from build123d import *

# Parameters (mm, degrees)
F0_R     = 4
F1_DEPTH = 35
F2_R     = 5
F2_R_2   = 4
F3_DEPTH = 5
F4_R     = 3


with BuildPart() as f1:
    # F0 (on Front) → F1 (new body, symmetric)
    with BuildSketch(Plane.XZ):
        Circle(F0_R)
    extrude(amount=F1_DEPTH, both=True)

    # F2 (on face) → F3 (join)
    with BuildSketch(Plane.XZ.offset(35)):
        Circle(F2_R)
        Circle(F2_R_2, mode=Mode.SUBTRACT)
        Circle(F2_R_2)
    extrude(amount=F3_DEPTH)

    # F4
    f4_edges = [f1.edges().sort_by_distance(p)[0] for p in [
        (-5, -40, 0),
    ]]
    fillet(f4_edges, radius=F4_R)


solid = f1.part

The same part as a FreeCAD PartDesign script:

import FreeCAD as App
import Part
import Sketcher
from FreeCAD import Vector
Q = App.Units.Quantity


def edges_at(feature, points):
    """Names of the edges that pass closest to the given points."""
    edges = feature.Shape.Edges
    near = lambda p: min(range(len(edges)), key=lambda i: edges[i].distToShape(Part.Vertex(*p))[0])
    return sorted({f"Edge{near(p) + 1}" for p in points})

doc = App.newDocument("Part")
body = doc.addObject("PartDesign::Body", "Body")

# Sketch on XZ plane
sketch1 = body.newObject("Sketcher::SketchObject", "Sketch")
sketch1.AttachmentSupport = (doc.getObject("XZ_Plane"), [""])
sketch1.MapMode = "FlatFace"
sketch1.addGeometry(Part.Circle(Vector(0, 0, 0), Vector(0, 0, 1), 4), False)
sketch1.addConstraint(Sketcher.Constraint("Coincident", 0, 3, -1, 1))
sketch1.addConstraint(Sketcher.Constraint("Diameter", 0, Q("8 mm")))
pad1 = body.newObject("PartDesign::Pad", "Pad")
pad1.Profile = sketch1
pad1.Length = 70
pad1.Midplane = True

# Sketch on XZ plane
sketch2 = body.newObject("Sketcher::SketchObject", "Sketch001")
sketch2.AttachmentSupport = (doc.getObject("XZ_Plane"), [""])
sketch2.MapMode = "FlatFace"
sketch2.AttachmentOffset = App.Placement(Vector(0, 0, 35), App.Rotation())
sketch2.addGeometry(Part.Circle(Vector(0, 0, 0), Vector(0, 0, 1), 5), False)
sketch2.addConstraint(Sketcher.Constraint("Coincident", 0, 3, -1, 1))
sketch2.addConstraint(Sketcher.Constraint("Diameter", 0, Q("10 mm")))
pad2 = body.newObject("PartDesign::Pad", "Pad001")
pad2.Profile = sketch2
pad2.Length = 5
doc.recompute()

fillet = body.newObject("PartDesign::Fillet", "Fillet")
fillet.Base = (pad2, edges_at(pad2, [(-5, -40, 0)]))
fillet.Radius = 3

doc.recompute()
